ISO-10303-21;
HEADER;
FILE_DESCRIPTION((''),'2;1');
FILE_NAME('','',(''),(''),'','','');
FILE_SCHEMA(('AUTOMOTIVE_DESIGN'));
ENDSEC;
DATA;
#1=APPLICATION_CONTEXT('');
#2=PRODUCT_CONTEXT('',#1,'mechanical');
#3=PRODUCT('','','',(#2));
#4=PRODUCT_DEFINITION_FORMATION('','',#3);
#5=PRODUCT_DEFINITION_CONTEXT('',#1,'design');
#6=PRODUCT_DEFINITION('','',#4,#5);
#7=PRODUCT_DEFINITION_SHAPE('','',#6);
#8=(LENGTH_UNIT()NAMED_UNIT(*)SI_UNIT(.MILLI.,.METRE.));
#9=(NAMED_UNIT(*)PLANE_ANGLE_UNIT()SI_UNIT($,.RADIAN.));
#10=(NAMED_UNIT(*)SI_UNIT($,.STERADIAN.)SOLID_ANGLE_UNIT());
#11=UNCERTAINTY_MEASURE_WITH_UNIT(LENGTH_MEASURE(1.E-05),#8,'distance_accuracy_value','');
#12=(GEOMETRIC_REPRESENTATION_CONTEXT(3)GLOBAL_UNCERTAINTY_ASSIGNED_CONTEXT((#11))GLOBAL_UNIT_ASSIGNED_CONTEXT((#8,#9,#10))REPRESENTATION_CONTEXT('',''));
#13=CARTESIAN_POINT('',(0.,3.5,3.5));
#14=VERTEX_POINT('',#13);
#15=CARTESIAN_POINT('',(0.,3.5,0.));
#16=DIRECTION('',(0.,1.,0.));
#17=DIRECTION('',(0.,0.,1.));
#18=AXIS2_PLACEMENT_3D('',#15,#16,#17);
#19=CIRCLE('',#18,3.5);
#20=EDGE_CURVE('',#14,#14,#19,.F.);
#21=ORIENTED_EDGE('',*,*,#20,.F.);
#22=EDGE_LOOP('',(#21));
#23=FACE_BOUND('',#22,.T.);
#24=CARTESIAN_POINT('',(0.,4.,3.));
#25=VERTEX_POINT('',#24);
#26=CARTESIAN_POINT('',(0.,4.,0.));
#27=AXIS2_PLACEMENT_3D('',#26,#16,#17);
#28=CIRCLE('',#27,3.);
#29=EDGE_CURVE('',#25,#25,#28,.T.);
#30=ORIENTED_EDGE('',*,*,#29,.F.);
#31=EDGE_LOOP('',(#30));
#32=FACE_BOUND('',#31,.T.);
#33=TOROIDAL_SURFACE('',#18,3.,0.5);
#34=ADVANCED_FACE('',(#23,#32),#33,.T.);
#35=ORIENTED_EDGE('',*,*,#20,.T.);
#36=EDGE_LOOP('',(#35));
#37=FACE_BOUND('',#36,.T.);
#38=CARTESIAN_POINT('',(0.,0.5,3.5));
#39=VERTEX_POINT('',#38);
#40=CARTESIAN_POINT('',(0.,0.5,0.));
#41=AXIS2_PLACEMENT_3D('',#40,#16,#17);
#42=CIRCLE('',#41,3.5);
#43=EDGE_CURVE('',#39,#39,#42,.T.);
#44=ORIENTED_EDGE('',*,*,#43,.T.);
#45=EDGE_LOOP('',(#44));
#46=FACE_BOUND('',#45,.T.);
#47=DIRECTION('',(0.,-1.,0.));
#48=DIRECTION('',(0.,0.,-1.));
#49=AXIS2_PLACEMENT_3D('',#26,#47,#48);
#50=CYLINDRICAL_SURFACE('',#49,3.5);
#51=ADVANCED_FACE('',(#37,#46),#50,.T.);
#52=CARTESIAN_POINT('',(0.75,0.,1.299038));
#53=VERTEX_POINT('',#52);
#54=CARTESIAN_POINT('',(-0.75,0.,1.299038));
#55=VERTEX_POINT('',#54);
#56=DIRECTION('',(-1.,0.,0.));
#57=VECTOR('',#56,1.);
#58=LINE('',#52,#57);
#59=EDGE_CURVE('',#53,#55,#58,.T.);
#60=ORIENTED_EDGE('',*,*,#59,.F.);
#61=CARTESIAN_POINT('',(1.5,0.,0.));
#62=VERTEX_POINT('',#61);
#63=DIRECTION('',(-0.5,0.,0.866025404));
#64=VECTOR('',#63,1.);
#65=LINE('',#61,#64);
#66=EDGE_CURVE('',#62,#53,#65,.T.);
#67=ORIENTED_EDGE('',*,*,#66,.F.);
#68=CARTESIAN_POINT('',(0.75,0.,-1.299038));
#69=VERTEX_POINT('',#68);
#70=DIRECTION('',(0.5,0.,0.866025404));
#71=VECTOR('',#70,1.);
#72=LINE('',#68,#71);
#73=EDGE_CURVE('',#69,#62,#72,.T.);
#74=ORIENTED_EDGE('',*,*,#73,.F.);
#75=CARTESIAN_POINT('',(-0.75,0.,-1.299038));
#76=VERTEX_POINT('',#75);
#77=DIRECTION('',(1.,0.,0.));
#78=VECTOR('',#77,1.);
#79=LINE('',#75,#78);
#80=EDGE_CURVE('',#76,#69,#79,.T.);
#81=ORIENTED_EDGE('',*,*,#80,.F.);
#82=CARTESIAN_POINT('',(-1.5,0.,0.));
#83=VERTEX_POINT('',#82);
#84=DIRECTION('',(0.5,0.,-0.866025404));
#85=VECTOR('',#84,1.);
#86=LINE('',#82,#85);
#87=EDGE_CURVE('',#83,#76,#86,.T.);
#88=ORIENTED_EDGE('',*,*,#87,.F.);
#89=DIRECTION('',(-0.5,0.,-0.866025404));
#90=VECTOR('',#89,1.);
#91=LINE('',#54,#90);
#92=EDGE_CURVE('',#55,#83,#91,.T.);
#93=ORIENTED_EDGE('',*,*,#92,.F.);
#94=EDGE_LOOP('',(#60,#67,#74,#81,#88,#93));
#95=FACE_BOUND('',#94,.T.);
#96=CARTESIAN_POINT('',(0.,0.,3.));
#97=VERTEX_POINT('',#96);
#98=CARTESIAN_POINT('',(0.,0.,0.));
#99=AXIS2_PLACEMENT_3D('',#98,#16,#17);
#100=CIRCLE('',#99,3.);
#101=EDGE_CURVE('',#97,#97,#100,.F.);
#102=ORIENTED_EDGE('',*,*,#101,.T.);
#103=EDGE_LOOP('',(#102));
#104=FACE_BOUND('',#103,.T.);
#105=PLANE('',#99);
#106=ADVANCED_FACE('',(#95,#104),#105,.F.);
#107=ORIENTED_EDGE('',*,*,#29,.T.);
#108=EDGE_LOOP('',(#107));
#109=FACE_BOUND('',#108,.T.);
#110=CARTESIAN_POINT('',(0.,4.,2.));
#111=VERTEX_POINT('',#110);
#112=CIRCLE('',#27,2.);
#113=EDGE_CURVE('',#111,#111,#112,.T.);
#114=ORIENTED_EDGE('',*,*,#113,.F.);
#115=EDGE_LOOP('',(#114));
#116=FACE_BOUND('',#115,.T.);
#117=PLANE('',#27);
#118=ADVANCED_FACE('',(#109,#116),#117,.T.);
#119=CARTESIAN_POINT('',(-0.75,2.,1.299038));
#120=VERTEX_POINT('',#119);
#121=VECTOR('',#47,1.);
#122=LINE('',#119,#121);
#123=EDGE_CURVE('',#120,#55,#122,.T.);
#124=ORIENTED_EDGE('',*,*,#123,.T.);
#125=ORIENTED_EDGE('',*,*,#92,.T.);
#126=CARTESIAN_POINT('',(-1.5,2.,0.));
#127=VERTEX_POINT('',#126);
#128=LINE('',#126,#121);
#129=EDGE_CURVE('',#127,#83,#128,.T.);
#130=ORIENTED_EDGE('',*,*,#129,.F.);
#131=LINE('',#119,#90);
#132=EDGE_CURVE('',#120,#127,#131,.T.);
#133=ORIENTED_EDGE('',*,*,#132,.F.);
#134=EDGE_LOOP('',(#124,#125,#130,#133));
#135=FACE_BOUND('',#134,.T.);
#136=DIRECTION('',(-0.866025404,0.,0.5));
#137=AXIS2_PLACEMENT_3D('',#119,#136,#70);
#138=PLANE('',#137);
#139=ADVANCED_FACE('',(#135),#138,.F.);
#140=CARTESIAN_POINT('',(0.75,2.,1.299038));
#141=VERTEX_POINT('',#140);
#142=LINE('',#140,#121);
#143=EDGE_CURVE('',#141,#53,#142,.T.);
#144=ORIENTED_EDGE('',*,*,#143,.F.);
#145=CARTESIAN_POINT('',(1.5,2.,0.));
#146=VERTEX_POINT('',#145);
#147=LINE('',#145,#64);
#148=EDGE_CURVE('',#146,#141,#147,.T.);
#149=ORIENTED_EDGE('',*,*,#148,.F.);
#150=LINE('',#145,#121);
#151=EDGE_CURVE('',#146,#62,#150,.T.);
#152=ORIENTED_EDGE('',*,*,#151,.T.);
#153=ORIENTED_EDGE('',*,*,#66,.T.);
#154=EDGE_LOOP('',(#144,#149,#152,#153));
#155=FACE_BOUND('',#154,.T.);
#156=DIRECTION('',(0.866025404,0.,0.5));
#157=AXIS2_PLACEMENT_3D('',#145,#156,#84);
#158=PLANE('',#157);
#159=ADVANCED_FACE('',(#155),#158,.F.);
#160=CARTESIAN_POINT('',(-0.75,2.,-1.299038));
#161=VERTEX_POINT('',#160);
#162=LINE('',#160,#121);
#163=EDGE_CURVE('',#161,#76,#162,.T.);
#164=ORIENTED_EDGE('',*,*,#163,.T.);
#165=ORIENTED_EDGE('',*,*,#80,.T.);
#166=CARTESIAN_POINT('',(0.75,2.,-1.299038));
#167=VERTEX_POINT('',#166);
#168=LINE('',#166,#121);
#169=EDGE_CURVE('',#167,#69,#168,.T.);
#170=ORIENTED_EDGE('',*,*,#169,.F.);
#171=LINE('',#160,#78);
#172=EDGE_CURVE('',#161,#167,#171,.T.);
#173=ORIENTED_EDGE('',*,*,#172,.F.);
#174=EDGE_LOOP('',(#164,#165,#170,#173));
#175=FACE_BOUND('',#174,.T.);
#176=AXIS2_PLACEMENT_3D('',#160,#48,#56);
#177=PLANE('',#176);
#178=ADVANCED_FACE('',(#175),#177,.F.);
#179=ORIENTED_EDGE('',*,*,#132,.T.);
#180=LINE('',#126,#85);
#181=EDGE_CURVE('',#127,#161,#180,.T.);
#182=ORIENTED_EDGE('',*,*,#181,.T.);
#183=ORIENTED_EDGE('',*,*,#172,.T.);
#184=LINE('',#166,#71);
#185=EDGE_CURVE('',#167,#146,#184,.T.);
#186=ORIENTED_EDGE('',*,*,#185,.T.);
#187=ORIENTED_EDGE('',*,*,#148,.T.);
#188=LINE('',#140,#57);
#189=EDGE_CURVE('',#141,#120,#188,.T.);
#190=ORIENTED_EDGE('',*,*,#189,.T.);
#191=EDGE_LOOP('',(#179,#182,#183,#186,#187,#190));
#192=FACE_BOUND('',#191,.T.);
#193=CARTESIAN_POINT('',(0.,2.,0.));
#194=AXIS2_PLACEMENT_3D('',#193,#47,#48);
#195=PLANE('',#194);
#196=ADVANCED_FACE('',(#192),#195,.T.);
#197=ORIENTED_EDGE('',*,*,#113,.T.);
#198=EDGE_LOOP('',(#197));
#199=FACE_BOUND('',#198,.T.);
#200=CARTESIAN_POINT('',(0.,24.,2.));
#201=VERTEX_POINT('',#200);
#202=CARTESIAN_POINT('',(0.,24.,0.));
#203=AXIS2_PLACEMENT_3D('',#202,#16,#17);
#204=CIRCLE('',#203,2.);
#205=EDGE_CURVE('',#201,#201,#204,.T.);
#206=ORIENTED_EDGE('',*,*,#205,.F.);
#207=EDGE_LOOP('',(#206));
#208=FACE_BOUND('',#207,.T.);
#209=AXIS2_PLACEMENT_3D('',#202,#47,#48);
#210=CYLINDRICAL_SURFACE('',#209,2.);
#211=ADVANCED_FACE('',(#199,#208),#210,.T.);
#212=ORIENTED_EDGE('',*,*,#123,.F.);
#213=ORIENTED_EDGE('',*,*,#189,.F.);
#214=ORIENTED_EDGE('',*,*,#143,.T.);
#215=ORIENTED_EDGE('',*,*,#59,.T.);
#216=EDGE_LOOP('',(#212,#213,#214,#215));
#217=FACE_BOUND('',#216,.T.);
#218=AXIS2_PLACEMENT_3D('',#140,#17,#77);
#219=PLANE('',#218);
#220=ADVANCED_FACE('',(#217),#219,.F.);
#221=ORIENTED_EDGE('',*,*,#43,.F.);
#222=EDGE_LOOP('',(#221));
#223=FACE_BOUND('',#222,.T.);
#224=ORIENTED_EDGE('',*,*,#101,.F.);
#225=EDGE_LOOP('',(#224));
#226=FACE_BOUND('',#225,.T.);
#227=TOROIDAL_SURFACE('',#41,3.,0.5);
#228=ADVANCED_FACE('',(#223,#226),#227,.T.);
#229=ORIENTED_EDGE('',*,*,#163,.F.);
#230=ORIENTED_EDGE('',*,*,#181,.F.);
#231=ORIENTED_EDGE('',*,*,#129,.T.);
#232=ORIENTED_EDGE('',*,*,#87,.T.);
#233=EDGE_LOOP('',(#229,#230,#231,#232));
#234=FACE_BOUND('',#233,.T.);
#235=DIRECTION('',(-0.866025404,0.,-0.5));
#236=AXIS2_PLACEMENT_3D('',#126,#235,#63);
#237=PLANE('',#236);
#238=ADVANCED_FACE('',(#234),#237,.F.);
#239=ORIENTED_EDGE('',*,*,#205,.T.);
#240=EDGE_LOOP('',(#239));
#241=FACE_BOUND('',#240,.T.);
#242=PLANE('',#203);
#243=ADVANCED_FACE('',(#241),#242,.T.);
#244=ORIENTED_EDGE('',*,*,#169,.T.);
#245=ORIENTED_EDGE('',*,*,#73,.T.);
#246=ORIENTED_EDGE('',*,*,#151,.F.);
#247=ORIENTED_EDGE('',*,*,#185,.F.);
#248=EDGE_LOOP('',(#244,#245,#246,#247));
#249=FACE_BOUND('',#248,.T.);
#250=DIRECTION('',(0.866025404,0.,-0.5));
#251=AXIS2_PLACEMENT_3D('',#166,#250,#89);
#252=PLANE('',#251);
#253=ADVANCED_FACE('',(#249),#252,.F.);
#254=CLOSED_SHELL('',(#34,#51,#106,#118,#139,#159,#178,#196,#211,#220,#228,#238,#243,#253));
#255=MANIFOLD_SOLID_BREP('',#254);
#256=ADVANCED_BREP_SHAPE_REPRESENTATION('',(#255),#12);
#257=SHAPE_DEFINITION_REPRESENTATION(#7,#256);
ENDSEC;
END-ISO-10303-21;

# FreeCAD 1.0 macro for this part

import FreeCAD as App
import Part
import Sketcher

V = App.Vector
Q = App.Units.Quantity


def edges_at(feature, points):
    """Names of the edges that pass closest to the given points."""
    edges = feature.Shape.Edges
    near = lambda p: min(range(len(edges)), key=lambda i: edges[i].distToShape(Part.Vertex(*p))[0])
    return sorted({f"Edge{near(p) + 1}" for p in points})

doc = App.newDocument("Part")
body = doc.addObject("PartDesign::Body", "Body")

# Sketch on XZ plane
sketch1 = body.newObject("Sketcher::SketchObject", "Sketch")
sketch1.AttachmentSupport = (doc.getObject("XZ_Plane"), [""])
sketch1.MapMode = "FlatFace"
sketch1.addGeometry(Part.Circle(V(0, 0, 0), V(0, 0, 1), 3.5), False)
sketch1.addConstraint([
    Sketcher.Constraint("Coincident", 0, 3, -1, 1),
    Sketcher.Constraint("Diameter", 0, 7.0),
])
pad1 = body.newObject("PartDesign::Pad", "Pad")
pad1.Profile = sketch1
pad1.Length = 4
pad1.Reversed = True

# Sketch on XZ plane
sketch2 = body.newObject("Sketcher::SketchObject", "Sketch001")
sketch2.AttachmentSupport = (doc.getObject("XZ_Plane"), [""])
sketch2.MapMode = "FlatFace"
sketch2.AttachmentOffset = App.Placement(V(0, 0, -4), App.Rotation())
sketch2.addGeometry(Part.Circle(V(0, 0, 0), V(0, 0, 1), 2), False)
sketch2.addConstraint([
    Sketcher.Constraint("Coincident", 0, 3, -1, 1),
    Sketcher.Constraint("Diameter", 0, 4.0),
])
pad2 = body.newObject("PartDesign::Pad", "Pad001")
pad2.Profile = sketch2
pad2.Length = 20
pad2.Reversed = True

# Sketch on XZ plane
sketch3 = body.newObject("Sketcher::SketchObject", "Sketch002")
sketch3.AttachmentSupport = (doc.getObject("XZ_Plane"), [""])
sketch3.MapMode = "FlatFace"
sketch3.addGeometry([
    Part.LineSegment(V(1.5, 0, 0), V(0.8, 1.3, 0)),  # 0
    Part.LineSegment(V(0.8, 1.3, 0), V(-0.8, 1.3, 0)),  # 1
    Part.LineSegment(V(-0.8, 1.3, 0), V(-1.5, 0, 0)),  # 2
    Part.LineSegment(V(-1.5, 0, 0), V(-0.8, -1.3, 0)),  # 3
    Part.LineSegment(V(-0.8, -1.3, 0), V(0.8, -1.3, 0)),  # 4
    Part.LineSegment(V(0.8, -1.3, 0), V(1.5, 0, 0)),  # 5
], False)
sketch3.addConstraint([
    Sketcher.Constraint("Coincident", 0, 2, 1, 1),
    Sketcher.Constraint("Coincident", 1, 2, 2, 1),
    Sketcher.Constraint("Coincident", 2, 2, 3, 1),
    Sketcher.Constraint("Coincident", 3, 2, 4, 1),
    Sketcher.Constraint("Coincident", 4, 2, 5, 1),
    Sketcher.Constraint("Coincident", 5, 2, 0, 1),
    Sketcher.Constraint("Horizontal", 1),
    Sketcher.Constraint("Horizontal", 4),
    Sketcher.Constraint("Symmetric", 0, 2, 3, 2, -1, 1),
    Sketcher.Constraint("Symmetric", 2, 2, 5, 2, -1, 1),
    Sketcher.Constraint("PointOnObject", 2, 2, -1),
    Sketcher.Constraint("Parallel", 2, 5),
    Sketcher.Constraint("Vertical", 1, 2, 3, 2),
    Sketcher.Constraint("Angle", 0, Q("120 deg")),
    Sketcher.Constraint("DistanceX", 1, 2, 1, 1, 1.5),
    Sketcher.Constraint("DistanceX", 2, 2, 5, 2, 3.0),
])
pocket1 = body.newObject("PartDesign::Pocket", "Pocket")
pocket1.Profile = sketch3
pocket1.Length = 2
doc.recompute()

fillet = body.newObject("PartDesign::Fillet", "Fillet")
fillet.Base = (pocket1, edges_at(pocket1, [(0, 0, -3.5), (0, 4, -3.5)]))
fillet.Radius = 0.5

doc.recompute()
